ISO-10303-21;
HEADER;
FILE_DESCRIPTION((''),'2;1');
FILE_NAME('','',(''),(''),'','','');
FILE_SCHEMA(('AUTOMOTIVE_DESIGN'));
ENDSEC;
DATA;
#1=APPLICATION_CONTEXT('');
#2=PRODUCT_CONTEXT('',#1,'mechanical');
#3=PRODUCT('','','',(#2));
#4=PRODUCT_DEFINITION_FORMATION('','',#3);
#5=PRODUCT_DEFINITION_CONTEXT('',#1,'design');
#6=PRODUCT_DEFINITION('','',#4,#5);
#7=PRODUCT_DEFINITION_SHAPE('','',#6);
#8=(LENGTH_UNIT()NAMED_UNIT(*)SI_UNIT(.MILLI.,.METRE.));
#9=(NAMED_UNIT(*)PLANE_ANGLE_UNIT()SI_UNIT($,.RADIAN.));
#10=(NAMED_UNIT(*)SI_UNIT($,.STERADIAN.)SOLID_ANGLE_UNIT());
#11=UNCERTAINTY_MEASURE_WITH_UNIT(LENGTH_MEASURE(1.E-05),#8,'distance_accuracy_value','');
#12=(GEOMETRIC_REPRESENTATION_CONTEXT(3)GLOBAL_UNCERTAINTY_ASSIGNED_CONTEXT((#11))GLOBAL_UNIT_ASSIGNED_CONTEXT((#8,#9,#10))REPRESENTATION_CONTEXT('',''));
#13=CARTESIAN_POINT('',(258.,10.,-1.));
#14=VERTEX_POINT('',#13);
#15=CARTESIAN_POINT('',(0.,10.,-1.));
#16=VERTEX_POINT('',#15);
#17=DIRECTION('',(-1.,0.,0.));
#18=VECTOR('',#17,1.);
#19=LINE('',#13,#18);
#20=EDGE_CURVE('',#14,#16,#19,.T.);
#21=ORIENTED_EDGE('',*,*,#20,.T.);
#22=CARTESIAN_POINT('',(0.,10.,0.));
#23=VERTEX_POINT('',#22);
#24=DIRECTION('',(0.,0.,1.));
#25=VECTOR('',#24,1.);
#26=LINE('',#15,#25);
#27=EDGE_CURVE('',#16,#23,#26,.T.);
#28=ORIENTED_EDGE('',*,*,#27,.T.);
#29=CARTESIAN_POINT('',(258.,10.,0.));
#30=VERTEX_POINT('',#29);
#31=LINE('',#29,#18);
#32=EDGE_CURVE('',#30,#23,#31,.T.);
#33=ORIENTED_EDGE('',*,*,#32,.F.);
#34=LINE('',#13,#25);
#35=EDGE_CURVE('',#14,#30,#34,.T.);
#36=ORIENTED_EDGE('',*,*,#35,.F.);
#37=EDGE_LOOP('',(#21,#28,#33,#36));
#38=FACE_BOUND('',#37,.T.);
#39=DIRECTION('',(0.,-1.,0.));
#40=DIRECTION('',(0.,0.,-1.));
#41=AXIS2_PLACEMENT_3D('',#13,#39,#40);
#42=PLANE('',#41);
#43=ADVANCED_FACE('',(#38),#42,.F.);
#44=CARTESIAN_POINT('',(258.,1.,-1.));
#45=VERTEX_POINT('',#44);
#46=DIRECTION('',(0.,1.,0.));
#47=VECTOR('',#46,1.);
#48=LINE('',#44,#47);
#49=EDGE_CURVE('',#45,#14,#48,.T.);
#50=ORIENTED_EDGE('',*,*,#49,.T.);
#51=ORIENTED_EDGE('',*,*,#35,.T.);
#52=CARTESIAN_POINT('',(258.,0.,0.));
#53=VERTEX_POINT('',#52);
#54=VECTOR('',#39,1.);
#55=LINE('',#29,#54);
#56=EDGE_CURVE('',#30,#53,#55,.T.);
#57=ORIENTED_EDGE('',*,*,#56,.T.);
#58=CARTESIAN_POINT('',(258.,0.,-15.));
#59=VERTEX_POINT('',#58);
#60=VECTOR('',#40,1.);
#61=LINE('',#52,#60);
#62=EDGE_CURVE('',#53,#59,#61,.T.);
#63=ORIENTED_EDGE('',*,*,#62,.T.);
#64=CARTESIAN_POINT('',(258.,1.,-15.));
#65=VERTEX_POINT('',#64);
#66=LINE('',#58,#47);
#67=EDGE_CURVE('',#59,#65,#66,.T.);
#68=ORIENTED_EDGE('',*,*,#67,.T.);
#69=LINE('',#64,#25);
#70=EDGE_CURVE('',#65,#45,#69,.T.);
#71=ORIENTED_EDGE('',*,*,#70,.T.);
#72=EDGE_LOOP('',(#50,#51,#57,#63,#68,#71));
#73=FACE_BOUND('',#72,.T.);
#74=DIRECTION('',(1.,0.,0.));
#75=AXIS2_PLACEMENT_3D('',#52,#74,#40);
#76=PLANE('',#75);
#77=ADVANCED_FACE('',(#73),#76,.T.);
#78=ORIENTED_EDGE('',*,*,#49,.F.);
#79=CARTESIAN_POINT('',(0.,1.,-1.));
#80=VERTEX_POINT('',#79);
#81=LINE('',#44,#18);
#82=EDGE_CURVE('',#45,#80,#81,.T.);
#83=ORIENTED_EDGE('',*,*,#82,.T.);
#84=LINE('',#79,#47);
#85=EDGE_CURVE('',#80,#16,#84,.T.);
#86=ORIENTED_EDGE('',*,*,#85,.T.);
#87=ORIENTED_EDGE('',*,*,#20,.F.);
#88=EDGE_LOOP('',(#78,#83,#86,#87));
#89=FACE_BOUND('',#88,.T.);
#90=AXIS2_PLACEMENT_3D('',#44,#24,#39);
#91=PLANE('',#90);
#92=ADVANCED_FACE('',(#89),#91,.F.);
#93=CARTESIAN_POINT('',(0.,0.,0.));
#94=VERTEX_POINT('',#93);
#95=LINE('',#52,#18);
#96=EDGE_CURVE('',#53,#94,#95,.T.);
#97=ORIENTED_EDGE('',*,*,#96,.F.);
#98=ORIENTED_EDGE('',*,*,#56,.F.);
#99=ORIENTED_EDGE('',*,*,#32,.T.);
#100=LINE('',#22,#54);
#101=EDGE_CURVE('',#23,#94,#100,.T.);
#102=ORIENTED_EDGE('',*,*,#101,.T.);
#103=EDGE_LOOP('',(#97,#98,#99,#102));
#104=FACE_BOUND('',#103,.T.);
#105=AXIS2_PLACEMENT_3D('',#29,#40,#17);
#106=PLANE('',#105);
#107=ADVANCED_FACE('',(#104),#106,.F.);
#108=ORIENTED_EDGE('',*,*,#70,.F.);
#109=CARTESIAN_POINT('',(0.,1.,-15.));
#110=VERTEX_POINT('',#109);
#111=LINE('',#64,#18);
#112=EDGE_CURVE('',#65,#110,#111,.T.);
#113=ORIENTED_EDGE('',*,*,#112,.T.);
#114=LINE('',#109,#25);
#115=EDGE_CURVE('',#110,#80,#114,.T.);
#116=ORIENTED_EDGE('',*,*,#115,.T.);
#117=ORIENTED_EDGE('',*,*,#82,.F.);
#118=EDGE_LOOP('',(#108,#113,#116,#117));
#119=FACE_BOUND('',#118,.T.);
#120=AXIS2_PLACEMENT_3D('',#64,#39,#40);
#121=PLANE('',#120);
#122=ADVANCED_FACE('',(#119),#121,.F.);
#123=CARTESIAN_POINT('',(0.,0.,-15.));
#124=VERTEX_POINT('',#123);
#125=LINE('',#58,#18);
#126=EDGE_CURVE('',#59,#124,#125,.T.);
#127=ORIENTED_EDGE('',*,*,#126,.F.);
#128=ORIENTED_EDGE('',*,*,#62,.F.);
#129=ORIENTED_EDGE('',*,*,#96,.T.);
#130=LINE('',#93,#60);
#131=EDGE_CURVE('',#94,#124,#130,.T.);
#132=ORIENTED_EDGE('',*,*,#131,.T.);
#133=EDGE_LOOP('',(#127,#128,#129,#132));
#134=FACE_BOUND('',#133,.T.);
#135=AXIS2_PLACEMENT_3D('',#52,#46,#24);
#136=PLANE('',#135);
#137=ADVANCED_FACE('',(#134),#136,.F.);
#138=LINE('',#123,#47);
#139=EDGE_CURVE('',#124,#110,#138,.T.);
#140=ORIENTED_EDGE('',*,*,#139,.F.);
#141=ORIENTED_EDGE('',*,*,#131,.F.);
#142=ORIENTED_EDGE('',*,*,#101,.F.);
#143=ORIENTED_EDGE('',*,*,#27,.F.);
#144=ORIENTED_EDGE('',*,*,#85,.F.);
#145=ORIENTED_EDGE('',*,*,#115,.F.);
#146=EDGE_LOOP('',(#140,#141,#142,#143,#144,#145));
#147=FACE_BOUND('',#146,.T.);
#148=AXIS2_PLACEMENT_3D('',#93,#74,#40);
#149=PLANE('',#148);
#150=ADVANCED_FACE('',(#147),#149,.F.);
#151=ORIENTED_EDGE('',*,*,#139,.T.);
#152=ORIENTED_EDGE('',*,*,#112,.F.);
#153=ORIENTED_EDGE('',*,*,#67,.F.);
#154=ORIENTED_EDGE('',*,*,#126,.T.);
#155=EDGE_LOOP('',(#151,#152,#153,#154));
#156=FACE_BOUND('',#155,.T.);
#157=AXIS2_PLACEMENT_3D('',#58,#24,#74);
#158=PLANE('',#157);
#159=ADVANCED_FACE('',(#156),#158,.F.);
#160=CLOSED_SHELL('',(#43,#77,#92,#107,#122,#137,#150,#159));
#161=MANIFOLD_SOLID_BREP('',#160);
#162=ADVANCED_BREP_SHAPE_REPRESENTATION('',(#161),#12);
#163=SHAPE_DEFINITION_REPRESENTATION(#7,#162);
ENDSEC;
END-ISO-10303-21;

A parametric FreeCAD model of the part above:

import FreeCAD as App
import Part
import Sketcher

V = App.Vector

doc = App.newDocument("Part")
body = doc.addObject("PartDesign::Body", "Body")

# Sketch on YZ plane
sketch1 = body.newObject("Sketcher::SketchObject", "Sketch")
sketch1.AttachmentSupport = (doc.getObject("YZ_Plane"), [""])
sketch1.MapMode = "FlatFace"
sketch1.addGeometry([
    Part.LineSegment(V(10, 0, 0), V(0, 0, 0)),  # 0
    Part.LineSegment(V(0, 0, 0), V(0, -15, 0)),  # 1
    Part.LineSegment(V(0, -15, 0), V(1, -15, 0)),  # 2
    Part.LineSegment(V(1, -15, 0), V(1, -1, 0)),  # 3
    Part.LineSegment(V(1, -1, 0), V(10, -1, 0)),  # 4
    Part.LineSegment(V(10, -1, 0), V(10, 0, 0)),  # 5
], False)
sketch1.addConstraint([
    Sketcher.Constraint("Coincident", 0, 2, 1, 1),
    Sketcher.Constraint("Coincident", 1, 2, 2, 1),
    Sketcher.Constraint("Coincident", 2, 2, 3, 1),
    Sketcher.Constraint("Coincident", 3, 2, 4, 1),
    Sketcher.Constraint("Coincident", 4, 2, 5, 1),
    Sketcher.Constraint("Coincident", 5, 2, 0, 1),
    Sketcher.Constraint("Horizontal", 0),
    Sketcher.Constraint("Vertical", 1),
    Sketcher.Constraint("Horizontal", 2),
    Sketcher.Constraint("Vertical", 3),
    Sketcher.Constraint("Horizontal", 4),
    Sketcher.Constraint("Vertical", 5),
    Sketcher.Constraint("Coincident", 0, 2, -1, 1),
    Sketcher.Constraint("Equal", 2, 5),
    Sketcher.Constraint("DistanceX", 0, 2, 0, 1, 10.0),
    Sketcher.Constraint("DistanceX", 2, 1, 2, 2, 1.0),
    Sketcher.Constraint("DistanceY", 1, 2, 1, 1, 15.0),
])
pad1 = body.newObject("PartDesign::Pad", "Pad")
pad1.Profile = sketch1
pad1.Length = 258

doc.recompute()
